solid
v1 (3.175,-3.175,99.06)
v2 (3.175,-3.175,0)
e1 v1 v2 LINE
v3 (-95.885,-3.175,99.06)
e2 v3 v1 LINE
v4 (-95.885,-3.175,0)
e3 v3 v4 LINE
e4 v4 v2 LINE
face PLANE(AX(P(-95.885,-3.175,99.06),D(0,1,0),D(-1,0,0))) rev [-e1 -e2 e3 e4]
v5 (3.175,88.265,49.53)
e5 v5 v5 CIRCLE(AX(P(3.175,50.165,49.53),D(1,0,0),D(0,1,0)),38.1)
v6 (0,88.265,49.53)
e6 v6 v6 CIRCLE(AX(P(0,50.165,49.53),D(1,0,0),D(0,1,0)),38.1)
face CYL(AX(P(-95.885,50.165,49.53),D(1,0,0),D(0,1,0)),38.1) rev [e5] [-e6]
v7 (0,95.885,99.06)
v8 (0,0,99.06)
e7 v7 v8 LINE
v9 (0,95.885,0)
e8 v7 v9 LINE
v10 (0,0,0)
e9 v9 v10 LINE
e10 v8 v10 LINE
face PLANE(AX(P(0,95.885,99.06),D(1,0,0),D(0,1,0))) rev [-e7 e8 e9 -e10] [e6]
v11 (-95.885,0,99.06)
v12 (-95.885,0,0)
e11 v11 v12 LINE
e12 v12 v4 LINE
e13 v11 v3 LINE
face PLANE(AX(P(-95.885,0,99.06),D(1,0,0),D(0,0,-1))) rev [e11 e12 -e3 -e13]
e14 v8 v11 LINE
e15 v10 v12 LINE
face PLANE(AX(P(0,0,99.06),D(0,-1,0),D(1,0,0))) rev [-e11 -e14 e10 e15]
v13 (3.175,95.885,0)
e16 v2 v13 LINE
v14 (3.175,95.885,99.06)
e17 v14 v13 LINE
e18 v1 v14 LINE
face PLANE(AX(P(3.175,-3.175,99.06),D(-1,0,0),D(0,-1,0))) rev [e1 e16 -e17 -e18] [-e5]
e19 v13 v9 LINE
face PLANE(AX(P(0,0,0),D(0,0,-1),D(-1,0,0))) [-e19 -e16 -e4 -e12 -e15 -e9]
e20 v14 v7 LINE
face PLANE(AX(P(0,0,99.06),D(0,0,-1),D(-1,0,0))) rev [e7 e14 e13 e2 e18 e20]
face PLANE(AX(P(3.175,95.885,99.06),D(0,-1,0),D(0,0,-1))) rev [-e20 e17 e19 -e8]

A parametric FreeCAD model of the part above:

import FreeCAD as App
import Part
import Sketcher

V = App.Vector
Q = App.Units.Quantity


def add_polygon(sketch, points):
    """Adds a closed chain of lines whose ends are joined by coincident constraints."""
    first, n = sketch.GeometryCount, len(points)
    for a, b in zip(points, points[1:] + points[:1]):
        sketch.addGeometry(Part.LineSegment(App.Vector(*a, 0), App.Vector(*b, 0)), False)
    for i in range(n):
        sketch.addConstraint(Sketcher.Constraint("Coincident", first + i, 2, first + (i + 1) % n, 1))

doc = App.newDocument("Part")
body = doc.addObject("PartDesign::Body", "Body")

# Sketch on XY plane
sketch1 = body.newObject("Sketcher::SketchObject", "Sketch")
sketch1.AttachmentSupport = (doc.getObject("XY_Plane"), [""])
sketch1.MapMode = "FlatFace"
add_polygon(sketch1, [(0, 0), (-95.9, 0), (-95.9, -3.2), (3.2, -3.2), (3.2, 95.9), (0, 95.9)])  # lines 0-5
sketch1.addConstraint([
    Sketcher.Constraint("Horizontal", 0),
    Sketcher.Constraint("Vertical", 1),
    Sketcher.Constraint("Horizontal", 2),
    Sketcher.Constraint("Vertical", 3),
    Sketcher.Constraint("Horizontal", 4),
    Sketcher.Constraint("Vertical", 5),
    Sketcher.Constraint("Coincident", 5, 2, -1, 1),
    Sketcher.Constraint("Equal", 4, 1),
    Sketcher.Constraint("Equal", 2, 3),
    Sketcher.Constraint("DistanceX", 2, 1, 2, 2, Q("3.9 in")),
    Sketcher.Constraint("DistanceX", 0, 2, 0, 1, Q("3.775 in")),
])
pad1 = body.newObject("PartDesign::Pad", "Pad")
pad1.Profile = sketch1
pad1.Length = Q("3.9 in")

# Sketch on YZ plane
sketch2 = body.newObject("Sketcher::SketchObject", "Sketch001")
sketch2.AttachmentSupport = (doc.getObject("YZ_Plane"), [""])
sketch2.MapMode = "FlatFace"
sketch2.AttachmentOffset = App.Placement(V(0, 0, 0.125 * 25.4), App.Rotation())
sketch2.addGeometry(Part.Circle(V(50, 50, 0), V(0, 0, 1), 38), False)
sketch2.addConstraint([
    Sketcher.Constraint("Diameter", 0, Q("3 in")),
    Sketcher.Constraint("DistanceY", -1, 1, 0, 3, Q("1.95 in")),
    Sketcher.Constraint("DistanceX", -1, 1, 0, 3, Q("1.975 in")),
])
pocket1 = body.newObject("PartDesign::Pocket", "Pocket")
pocket1.Profile = sketch2
pocket1.Type = "ThroughAll"

doc.recompute()
